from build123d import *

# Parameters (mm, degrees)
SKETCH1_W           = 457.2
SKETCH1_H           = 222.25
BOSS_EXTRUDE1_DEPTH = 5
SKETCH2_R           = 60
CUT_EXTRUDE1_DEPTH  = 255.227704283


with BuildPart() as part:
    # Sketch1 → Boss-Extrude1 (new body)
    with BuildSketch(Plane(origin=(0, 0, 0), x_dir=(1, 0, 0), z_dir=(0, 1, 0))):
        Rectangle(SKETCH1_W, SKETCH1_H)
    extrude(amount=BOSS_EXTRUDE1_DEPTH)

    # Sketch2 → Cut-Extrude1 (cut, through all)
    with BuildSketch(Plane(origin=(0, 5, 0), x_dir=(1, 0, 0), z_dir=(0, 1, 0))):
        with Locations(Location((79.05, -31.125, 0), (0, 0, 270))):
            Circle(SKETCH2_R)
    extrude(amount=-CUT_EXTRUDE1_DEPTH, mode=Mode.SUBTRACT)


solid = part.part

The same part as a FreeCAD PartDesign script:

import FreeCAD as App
import Part
import Sketcher

V = App.Vector


def add_polygon(sketch, points):
    """Adds a closed chain of lines whose ends are joined by coincident constraints."""
    first, n = sketch.GeometryCount, len(points)
    for a, b in zip(points, points[1:] + points[:1]):
        sketch.addGeometry(Part.LineSegment(App.Vector(*a, 0), App.Vector(*b, 0)), False)
    for i in range(n):
        sketch.addConstraint(Sketcher.Constraint("Coincident", first + i, 2, first + (i + 1) % n, 1))

doc = App.newDocument("Part")
body = doc.addObject("PartDesign::Body", "Body")

# Sketch on XZ plane
sketch1 = doc.addObject("Sketcher::SketchObject", "Sketch")
body.addObject(sketch1)
sketch1.AttachmentSupport = (doc.XZ_Plane, [""])
sketch1.MapMode = "FlatFace"
add_polygon(sketch1, [(-229, -111), (-229, 111), (229, 111), (229, -111)])  # lines 0-3
sketch1.addConstraint(Sketcher.Constraint("Vertical", 0))
sketch1.addConstraint(Sketcher.Constraint("Horizontal", 1))
sketch1.addConstraint(Sketcher.Constraint("Vertical", 2))
sketch1.addConstraint(Sketcher.Constraint("Horizontal", 3))
sketch1.addConstraint(Sketcher.Constraint("Symmetric", 0, 2, 2, 2, -1, 1))
sketch1.addConstraint(Sketcher.Constraint("DistanceX", 1, 1, 1, 2, 457.2))
sketch1.addConstraint(Sketcher.Constraint("DistanceY", 0, 1, 0, 2, 222.25))
pad1 = doc.addObject("PartDesign::Pad", "Pad")
body.addObject(pad1)
pad1.Profile = sketch1
pad1.Length = 5
pad1.Reversed = True

# Sketch on XZ plane
sketch2 = doc.addObject("Sketcher::SketchObject", "Sketch001")
body.addObject(sketch2)
sketch2.AttachmentSupport = (doc.XZ_Plane, [""])
sketch2.MapMode = "FlatFace"
sketch2.AttachmentOffset = App.Placement(V(0, 0, -5), App.Rotation())
sketch2.addGeometry(Part.Circle(V(79, 31, 0), V(0, 0, 1), 60), False)
sketch2.addConstraint(Sketcher.Constraint("Diameter", 0, 120.0))
sketch2.addConstraint(Sketcher.Constraint("DistanceX", -1, 1, 0, 3, 79.05))
sketch2.addConstraint(Sketcher.Constraint("DistanceY", -1, 1, 0, 3, 31.125))
pocket1 = doc.addObject("PartDesign::Pocket", "Pocket")
body.addObject(pocket1)
pocket1.Profile = sketch2
pocket1.Type = "ThroughAll"
pocket1.Reversed = True

doc.recompute()
